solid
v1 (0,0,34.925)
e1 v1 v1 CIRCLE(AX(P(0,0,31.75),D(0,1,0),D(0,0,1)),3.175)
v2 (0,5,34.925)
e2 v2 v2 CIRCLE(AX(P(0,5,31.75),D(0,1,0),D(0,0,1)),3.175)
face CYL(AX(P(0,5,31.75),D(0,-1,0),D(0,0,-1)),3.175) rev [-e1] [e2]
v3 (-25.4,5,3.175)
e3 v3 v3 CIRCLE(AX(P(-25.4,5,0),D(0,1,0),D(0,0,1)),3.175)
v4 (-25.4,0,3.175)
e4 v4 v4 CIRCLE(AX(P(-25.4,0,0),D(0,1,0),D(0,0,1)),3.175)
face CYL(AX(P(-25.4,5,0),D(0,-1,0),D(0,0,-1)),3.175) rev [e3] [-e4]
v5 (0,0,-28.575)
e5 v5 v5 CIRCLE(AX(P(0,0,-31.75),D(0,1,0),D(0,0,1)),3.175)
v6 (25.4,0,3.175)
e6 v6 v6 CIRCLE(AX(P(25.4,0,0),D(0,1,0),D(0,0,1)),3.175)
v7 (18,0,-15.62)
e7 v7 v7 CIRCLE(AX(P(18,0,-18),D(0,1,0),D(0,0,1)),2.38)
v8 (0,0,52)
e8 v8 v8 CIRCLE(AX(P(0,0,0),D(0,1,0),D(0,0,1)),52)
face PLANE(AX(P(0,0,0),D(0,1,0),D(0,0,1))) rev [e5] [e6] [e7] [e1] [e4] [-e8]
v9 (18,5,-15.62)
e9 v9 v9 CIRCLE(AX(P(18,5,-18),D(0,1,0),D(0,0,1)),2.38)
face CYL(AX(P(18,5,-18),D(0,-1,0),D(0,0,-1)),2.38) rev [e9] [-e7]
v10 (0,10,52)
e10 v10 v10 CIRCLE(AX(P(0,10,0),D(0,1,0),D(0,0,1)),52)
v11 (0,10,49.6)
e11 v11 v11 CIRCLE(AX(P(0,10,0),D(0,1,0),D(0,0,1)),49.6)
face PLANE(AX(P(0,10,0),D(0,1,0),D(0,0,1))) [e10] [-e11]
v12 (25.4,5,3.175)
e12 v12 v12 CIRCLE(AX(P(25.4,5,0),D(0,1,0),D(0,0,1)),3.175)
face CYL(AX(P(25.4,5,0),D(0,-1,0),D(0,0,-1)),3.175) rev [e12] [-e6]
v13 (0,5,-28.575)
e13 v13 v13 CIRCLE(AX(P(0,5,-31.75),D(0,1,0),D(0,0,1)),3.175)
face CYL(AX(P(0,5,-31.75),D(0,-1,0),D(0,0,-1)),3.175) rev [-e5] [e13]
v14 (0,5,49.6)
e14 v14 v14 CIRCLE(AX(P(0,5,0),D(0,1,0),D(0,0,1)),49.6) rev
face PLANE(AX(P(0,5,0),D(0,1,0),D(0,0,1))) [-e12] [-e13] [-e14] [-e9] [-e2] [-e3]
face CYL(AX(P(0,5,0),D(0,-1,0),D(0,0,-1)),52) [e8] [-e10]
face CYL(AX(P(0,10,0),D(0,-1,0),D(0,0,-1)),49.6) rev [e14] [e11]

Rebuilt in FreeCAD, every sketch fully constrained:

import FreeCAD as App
import Part
import Sketcher

V = App.Vector
Q = App.Units.Quantity

doc = App.newDocument("Part")
params = doc.addObject("Spreadsheet::Sheet", "Params")
for row, (alias, value) in enumerate([
    ("sketch1_diameter", "104 mm"),
    ("sketch1_diameter2", "6.35 mm"),
    ("sketch1_diameter3", "4.76 mm"),
    ("pad1_length", "5 mm"),
    ("sketch2_diameter", "104 mm"),
    ("sketch2_diameter2", "99.2 mm"),
    ("pad2_length", "5 mm"),
], start=1):
    params.set(f"A{row}", alias)
    params.set(f"B{row}", "=" + value)
    params.setAlias(f"B{row}", alias)

body = doc.addObject("PartDesign::Body", "Body")

sketch1 = body.newObject("Sketcher::SketchObject", "Sketch")
sketch1.AttachmentSupport = (doc.getObject("XZ_Plane"), [""])
sketch1.MapMode = "FlatFace"
sketch1.addGeometry([
    Part.Circle(V(0, 0, 0), V(0, 0, 1), 52),
    Part.Circle(V(0, 31.8, 0), V(0, 0, 1), 3.2),
    Part.Circle(V(-25.4, 0, 0), V(0, 0, 1), 3.2),
    Part.Circle(V(25.4, 0, 0), V(0, 0, 1), 3.2),
    Part.Circle(V(0, -31.8, 0), V(0, 0, 1), 3.2),
    Part.Circle(V(18, -18, 0), V(0, 0, 1), 2.4),
], False)
sketch1.addConstraint([
    Sketcher.Constraint("Coincident", 0, 3, -1, 1),
    Sketcher.Constraint("Equal", 1, 2),
    Sketcher.Constraint("Equal", 2, 3),
    Sketcher.Constraint("Equal", 3, 4),
    Sketcher.Constraint("Symmetric", 2, 3, 3, 3, -1, 1),
    Sketcher.Constraint("Symmetric", 1, 3, 4, 3, -1, 1),
    Sketcher.Constraint("PointOnObject", 1, 3, -2),
    Sketcher.Constraint("PointOnObject", 2, 3, -1),
    Sketcher.Constraint("Diameter", 0, Q("104 mm")),
    Sketcher.Constraint("Diameter", 1, Q("6.35 mm")),
    Sketcher.Constraint("Diameter", 5, Q("4.76 mm")),
    Sketcher.Constraint("DistanceX", -1, 1, 5, 3, Q("18 mm")),
    Sketcher.Constraint("DistanceY", 5, 3, -1, 1, Q("18 mm")),
    Sketcher.Constraint("DistanceX", 2, 3, -1, 1, Q("25.4 mm")),
    Sketcher.Constraint("DistanceY", 4, 3, 1, 3, Q("63.5 mm")),
])
sketch1.setExpression("Constraints[8]", "Params.sketch1_diameter")
sketch1.setExpression("Constraints[9]", "Params.sketch1_diameter2")
sketch1.setExpression("Constraints[10]", "Params.sketch1_diameter3")
pad1 = body.newObject("PartDesign::Pad", "Pad")
pad1.Profile = sketch1
pad1.setExpression("Length", "Params.pad1_length")
pad1.Reversed = True

sketch2 = body.newObject("Sketcher::SketchObject", "Sketch001")
sketch2.AttachmentSupport = (doc.getObject("XZ_Plane"), [""])
sketch2.MapMode = "FlatFace"
sketch2.AttachmentOffset = App.Placement(V(0, 0, -5), App.Rotation())
sketch2.addGeometry([
    Part.Circle(V(0, 0, 0), V(0, 0, 1), 52),
    Part.Circle(V(0, 0, 0), V(0, 0, 1), 50),
], False)
sketch2.addConstraint([
    Sketcher.Constraint("Coincident", 0, 3, -1, 1),
    Sketcher.Constraint("Coincident", 1, 3, -1, 1),
    Sketcher.Constraint("Diameter", 0, Q("104 mm")),
    Sketcher.Constraint("Diameter", 1, Q("99.2 mm")),
])
sketch2.setExpression("Constraints[2]", "Params.sketch2_diameter")
sketch2.setExpression("Constraints[3]", "Params.sketch2_diameter2")
pad2 = body.newObject("PartDesign::Pad", "Pad001")
pad2.Profile = sketch2
pad2.setExpression("Length", "Params.pad2_length")
pad2.Reversed = True

doc.recompute()
